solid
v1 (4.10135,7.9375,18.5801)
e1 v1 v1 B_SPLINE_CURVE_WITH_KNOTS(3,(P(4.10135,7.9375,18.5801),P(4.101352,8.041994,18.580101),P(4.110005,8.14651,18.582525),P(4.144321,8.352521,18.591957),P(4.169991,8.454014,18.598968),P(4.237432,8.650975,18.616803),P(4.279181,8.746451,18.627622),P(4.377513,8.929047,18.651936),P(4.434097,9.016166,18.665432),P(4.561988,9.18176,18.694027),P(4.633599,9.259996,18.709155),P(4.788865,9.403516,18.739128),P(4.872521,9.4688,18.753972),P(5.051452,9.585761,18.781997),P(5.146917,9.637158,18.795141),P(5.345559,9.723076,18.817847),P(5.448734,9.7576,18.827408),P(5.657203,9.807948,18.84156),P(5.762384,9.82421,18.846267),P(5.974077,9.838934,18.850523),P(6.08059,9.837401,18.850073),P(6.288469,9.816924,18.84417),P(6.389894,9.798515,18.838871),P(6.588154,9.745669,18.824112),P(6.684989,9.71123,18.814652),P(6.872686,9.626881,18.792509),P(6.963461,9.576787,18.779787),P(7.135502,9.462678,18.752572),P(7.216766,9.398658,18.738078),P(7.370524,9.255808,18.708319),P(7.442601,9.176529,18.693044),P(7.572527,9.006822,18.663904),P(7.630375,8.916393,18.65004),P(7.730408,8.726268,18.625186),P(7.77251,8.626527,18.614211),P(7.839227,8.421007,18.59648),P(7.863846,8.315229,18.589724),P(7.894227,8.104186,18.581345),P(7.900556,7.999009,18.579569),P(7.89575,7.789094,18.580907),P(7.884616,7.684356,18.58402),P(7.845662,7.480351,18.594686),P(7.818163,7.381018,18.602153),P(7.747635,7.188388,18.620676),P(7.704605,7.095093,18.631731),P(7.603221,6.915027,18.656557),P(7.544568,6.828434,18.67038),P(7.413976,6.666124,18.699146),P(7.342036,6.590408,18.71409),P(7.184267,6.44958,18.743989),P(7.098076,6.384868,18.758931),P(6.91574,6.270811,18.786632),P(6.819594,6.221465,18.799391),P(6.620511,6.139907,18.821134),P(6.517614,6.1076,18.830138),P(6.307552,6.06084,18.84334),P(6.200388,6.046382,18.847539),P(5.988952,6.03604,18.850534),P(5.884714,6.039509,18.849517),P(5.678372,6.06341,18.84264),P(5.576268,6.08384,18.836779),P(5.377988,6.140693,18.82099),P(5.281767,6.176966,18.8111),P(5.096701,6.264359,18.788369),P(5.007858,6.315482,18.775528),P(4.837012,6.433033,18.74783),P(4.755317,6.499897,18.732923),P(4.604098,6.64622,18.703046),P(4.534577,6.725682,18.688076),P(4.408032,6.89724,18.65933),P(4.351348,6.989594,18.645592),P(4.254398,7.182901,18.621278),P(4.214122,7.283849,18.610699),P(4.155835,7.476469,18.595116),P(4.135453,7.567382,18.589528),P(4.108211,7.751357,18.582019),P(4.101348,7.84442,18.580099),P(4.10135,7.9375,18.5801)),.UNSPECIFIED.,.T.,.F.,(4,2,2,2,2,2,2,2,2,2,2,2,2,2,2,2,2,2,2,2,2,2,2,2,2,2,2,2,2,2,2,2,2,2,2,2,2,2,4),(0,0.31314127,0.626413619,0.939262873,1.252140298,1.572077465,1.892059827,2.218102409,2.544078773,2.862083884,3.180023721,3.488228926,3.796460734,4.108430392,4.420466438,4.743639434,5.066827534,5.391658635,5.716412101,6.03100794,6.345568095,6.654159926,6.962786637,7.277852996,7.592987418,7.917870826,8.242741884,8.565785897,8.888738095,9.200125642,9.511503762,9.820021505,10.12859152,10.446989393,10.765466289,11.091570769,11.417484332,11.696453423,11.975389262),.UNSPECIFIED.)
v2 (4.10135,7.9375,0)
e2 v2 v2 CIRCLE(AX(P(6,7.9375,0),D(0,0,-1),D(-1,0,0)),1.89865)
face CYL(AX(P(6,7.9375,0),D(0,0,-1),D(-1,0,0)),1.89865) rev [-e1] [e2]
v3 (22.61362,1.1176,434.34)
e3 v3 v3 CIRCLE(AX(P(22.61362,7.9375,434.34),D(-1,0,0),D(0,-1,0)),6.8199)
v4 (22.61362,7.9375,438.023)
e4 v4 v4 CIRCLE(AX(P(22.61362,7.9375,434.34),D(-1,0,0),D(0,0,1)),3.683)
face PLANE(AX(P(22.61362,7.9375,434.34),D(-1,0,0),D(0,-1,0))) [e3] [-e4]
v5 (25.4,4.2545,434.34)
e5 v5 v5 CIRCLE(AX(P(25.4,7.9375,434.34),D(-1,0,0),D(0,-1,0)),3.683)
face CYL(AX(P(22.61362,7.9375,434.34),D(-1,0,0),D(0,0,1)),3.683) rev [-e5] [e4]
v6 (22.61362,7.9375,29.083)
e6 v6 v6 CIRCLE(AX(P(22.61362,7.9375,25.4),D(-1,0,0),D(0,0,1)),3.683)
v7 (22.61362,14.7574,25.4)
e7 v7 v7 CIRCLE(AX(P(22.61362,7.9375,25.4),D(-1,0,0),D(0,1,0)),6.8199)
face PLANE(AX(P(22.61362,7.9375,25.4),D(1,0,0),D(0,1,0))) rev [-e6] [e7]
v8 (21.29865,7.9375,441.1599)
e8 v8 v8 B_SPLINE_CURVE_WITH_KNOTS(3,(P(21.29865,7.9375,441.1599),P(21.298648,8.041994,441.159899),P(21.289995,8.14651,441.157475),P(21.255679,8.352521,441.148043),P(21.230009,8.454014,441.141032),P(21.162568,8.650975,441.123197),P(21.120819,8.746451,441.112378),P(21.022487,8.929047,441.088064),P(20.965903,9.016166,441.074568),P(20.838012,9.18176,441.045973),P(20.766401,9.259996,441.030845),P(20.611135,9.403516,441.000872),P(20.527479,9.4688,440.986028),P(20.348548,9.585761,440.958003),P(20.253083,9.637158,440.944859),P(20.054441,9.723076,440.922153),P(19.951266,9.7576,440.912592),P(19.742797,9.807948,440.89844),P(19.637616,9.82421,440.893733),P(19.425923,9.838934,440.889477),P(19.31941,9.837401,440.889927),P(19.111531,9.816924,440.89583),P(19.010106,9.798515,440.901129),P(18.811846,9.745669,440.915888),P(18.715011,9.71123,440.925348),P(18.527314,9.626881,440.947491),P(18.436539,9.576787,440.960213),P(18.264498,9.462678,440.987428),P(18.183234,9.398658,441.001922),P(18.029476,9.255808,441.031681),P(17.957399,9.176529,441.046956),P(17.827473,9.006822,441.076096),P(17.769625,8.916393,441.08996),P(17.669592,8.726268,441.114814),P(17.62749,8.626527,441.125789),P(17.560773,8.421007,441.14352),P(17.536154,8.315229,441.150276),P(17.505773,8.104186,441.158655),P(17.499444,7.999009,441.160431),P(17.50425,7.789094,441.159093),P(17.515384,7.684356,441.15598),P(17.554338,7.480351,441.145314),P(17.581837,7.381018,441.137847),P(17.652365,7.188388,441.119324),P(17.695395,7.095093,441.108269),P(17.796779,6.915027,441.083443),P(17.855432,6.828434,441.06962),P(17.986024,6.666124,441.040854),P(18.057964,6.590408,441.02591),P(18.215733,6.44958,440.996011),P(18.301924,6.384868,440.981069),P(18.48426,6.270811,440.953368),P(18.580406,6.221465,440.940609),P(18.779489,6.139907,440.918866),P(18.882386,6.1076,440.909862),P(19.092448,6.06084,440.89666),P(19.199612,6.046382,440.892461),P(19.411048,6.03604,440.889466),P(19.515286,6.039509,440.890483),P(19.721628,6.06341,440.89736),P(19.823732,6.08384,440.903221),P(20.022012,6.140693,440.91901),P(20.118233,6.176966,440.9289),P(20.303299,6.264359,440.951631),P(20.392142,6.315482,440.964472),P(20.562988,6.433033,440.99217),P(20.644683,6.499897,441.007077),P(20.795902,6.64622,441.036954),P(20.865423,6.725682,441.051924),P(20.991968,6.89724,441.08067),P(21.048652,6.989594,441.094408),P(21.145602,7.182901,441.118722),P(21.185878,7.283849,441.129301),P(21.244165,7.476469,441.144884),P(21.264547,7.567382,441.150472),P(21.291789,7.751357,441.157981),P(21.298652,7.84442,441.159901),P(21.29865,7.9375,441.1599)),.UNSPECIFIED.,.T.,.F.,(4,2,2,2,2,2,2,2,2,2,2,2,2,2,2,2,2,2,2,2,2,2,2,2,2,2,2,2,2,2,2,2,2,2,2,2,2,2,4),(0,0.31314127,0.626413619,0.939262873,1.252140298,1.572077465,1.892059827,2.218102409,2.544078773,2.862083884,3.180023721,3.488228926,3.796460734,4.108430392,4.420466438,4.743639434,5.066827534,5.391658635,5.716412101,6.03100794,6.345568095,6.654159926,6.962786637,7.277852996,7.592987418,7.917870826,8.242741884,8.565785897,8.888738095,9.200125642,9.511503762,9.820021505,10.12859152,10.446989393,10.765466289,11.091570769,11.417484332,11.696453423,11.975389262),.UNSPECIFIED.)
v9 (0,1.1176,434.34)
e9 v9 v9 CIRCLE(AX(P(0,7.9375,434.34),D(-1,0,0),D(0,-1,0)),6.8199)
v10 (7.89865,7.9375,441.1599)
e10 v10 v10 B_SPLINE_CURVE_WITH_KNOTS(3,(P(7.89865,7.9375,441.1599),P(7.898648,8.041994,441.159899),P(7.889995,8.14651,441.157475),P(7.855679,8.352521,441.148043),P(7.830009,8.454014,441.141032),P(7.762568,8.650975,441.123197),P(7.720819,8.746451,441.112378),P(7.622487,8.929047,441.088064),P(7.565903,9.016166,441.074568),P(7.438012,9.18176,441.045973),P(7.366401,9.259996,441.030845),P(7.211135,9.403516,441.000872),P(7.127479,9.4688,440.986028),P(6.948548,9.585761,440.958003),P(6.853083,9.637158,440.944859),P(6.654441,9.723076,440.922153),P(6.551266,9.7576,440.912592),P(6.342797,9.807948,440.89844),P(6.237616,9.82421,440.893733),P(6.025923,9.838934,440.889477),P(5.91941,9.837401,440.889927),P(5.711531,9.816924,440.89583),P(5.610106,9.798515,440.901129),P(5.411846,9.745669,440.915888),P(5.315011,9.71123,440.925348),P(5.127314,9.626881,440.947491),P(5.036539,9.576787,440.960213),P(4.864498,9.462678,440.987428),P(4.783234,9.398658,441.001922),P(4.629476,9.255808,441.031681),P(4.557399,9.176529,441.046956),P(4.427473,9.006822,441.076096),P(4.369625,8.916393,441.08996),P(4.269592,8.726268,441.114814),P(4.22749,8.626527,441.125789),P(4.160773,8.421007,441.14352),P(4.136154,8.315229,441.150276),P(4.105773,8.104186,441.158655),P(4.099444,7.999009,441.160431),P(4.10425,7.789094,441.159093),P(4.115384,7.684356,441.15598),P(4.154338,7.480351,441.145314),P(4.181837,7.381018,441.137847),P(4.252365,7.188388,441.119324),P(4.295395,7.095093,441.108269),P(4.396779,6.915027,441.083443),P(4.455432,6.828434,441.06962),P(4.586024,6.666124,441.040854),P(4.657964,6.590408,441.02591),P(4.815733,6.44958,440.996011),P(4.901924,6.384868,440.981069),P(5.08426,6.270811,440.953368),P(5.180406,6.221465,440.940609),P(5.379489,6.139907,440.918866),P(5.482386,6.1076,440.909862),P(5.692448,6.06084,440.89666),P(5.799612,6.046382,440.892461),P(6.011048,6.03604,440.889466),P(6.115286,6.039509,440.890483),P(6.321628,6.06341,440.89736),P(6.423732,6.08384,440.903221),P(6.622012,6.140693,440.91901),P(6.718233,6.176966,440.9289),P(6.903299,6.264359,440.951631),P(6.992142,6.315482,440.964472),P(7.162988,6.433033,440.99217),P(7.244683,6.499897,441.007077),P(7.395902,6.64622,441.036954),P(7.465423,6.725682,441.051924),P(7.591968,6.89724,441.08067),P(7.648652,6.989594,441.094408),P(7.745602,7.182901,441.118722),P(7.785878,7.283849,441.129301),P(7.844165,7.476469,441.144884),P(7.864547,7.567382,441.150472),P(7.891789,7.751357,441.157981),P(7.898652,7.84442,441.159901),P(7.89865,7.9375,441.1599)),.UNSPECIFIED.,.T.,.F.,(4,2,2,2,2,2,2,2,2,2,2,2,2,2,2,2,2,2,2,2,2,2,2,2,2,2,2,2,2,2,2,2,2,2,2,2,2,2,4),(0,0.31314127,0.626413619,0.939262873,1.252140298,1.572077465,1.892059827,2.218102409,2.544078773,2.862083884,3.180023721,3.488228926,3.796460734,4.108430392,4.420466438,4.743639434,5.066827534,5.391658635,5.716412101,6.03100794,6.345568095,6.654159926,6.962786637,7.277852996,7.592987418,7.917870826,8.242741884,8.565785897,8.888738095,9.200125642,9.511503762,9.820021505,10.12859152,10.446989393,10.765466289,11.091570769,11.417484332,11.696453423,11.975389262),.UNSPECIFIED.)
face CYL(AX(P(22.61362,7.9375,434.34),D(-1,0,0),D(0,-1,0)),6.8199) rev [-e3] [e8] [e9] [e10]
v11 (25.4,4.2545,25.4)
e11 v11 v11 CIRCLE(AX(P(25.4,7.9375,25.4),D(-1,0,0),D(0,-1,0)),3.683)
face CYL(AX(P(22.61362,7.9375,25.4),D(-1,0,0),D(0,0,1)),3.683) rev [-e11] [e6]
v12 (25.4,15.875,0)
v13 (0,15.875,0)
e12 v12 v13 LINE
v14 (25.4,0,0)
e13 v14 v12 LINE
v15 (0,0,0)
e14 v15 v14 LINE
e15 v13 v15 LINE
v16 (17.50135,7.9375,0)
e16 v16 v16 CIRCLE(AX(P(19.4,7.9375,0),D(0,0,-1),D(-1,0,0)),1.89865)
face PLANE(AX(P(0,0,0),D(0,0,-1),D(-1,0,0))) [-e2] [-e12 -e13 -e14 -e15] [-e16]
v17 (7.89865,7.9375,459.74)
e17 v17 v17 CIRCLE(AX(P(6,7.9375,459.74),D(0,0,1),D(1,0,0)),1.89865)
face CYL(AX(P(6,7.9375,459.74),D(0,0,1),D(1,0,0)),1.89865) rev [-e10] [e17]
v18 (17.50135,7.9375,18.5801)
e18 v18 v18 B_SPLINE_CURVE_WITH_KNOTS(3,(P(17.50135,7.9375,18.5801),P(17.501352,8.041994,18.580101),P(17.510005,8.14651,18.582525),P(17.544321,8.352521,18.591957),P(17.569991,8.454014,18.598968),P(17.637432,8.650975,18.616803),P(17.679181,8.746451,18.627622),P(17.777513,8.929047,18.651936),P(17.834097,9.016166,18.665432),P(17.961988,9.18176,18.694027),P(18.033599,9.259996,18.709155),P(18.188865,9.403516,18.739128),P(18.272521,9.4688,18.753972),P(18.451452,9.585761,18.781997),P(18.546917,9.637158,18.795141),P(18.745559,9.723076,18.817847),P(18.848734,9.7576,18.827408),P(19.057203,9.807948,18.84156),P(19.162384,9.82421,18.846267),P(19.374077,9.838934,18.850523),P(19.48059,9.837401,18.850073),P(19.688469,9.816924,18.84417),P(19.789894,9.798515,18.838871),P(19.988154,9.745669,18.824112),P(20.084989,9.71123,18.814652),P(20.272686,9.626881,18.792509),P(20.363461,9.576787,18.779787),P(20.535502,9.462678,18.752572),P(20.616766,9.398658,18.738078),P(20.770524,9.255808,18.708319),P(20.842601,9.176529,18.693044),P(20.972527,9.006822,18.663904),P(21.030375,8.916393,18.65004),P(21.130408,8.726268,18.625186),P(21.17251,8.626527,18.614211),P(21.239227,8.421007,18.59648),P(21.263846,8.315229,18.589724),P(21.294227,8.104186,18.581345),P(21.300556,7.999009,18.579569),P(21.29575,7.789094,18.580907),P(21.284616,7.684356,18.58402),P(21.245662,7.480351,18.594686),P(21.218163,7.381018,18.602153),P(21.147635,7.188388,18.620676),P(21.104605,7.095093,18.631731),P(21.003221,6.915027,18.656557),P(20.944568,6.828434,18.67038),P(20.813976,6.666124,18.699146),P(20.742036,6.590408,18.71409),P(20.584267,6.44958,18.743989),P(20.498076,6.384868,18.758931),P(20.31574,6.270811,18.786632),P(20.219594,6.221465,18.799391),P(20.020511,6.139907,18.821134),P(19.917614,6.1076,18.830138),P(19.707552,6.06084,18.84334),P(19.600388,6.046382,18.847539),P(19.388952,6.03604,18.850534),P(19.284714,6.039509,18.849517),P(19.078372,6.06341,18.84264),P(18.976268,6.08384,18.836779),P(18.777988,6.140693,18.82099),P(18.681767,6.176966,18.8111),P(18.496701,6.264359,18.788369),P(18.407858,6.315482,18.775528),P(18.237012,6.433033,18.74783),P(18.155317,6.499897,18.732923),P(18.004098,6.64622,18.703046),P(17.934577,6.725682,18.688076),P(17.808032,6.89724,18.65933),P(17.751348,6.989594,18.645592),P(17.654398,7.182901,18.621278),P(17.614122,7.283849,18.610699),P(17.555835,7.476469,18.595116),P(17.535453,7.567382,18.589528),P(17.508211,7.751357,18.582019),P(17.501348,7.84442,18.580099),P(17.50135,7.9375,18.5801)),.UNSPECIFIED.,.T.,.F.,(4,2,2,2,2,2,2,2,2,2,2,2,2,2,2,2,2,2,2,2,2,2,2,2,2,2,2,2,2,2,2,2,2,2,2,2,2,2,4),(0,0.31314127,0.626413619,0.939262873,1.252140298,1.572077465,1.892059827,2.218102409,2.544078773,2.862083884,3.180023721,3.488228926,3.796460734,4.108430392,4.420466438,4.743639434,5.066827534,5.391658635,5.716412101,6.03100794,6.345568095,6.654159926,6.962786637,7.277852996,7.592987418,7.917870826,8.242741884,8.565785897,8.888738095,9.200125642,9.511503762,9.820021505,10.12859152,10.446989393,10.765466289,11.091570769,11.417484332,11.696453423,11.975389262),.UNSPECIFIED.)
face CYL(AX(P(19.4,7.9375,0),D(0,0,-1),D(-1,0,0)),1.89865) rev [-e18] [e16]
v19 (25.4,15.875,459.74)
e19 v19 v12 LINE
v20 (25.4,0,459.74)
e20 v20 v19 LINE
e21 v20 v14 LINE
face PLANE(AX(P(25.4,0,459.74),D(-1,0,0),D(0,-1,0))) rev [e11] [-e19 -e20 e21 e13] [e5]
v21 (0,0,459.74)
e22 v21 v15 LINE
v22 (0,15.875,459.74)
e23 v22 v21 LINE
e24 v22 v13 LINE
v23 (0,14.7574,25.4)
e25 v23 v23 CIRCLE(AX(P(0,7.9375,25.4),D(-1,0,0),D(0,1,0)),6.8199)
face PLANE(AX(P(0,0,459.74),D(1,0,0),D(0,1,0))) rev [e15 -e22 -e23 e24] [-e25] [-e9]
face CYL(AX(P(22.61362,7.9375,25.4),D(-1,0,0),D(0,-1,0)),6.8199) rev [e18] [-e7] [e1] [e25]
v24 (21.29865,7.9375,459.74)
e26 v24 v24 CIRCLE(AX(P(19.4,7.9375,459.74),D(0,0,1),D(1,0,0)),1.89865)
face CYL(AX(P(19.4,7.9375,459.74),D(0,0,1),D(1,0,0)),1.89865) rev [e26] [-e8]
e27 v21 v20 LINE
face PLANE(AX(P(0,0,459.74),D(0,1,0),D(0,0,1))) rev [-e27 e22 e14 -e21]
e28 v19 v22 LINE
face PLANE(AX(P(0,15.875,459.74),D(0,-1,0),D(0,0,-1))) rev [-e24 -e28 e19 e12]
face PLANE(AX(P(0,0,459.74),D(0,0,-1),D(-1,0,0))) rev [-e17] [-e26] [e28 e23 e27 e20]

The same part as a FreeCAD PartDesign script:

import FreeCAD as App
import Part
import Sketcher

V = App.Vector
Q = App.Units.Quantity

doc = App.newDocument("Part")
params = doc.addObject("Spreadsheet::Sheet", "Params")
for row, (alias, value) in enumerate([
    ("sketch1_width", "1 in"),
    ("sketch1_height", "0.625 in"),
    ("pad1_length", "18.1 in"),
    ("sketch2_diameter", "0.537 in"),
    ("pocket1_length", "0.8903 in"),
    ("sketch3_diameter", "0.29 in"),
    ("hole_diameter", "0.29 in"),
    ("hole_depth", "2 in"),
    ("hole2_diameter", "0.1495 in"),
    ("hole2_depth", "0.815 in"),
    ("hole3_diameter", "0.1495 in"),
    ("hole3_depth", "0.815 in"),
], start=1):
    params.set(f"A{row}", alias)
    params.set(f"B{row}", "=" + value)
    params.setAlias(f"B{row}", alias)

body = doc.addObject("PartDesign::Body", "Body")

sketch1 = body.newObject("Sketcher::SketchObject", "Sketch")
sketch1.AttachmentSupport = (doc.getObject("XY_Plane"), [""])
sketch1.MapMode = "FlatFace"
sketch1.addGeometry([
    Part.LineSegment(V(0, 15.875, 0), V(0, 0, 0)),
    Part.LineSegment(V(0, 0, 0), V(25.4, 0, 0)),
    Part.LineSegment(V(25.4, 0, 0), V(25.4, 15.875, 0)),
    Part.LineSegment(V(25.4, 15.875, 0), V(0, 15.875, 0)),
], False)
sketch1.addConstraint([
    Sketcher.Constraint("Coincident", 0, 2, 1, 1),
    Sketcher.Constraint("Coincident", 1, 2, 2, 1),
    Sketcher.Constraint("Coincident", 2, 2, 3, 1),
    Sketcher.Constraint("Coincident", 3, 2, 0, 1),
    Sketcher.Constraint("Vertical", 0),
    Sketcher.Constraint("Horizontal", 1),
    Sketcher.Constraint("Vertical", 2),
    Sketcher.Constraint("Horizontal", 3),
    Sketcher.Constraint("Coincident", 0, 2, -1, 1),
    Sketcher.Constraint("DistanceX", 1, 1, 1, 2, Q("1 in")),
    Sketcher.Constraint("DistanceY", 0, 2, 0, 1, Q("0.625 in")),
])
sketch1.setExpression("Constraints[9]", "Params.sketch1_width")
sketch1.setExpression("Constraints[10]", "Params.sketch1_height")
pad1 = body.newObject("PartDesign::Pad", "Pad")
pad1.Profile = sketch1
pad1.setExpression("Length", "Params.pad1_length")

sketch2 = body.newObject("Sketcher::SketchObject", "Sketch001")
sketch2.AttachmentSupport = (doc.getObject("YZ_Plane"), [""])
sketch2.MapMode = "FlatFace"
sketch2.addGeometry([
    Part.Circle(V(7.9375, 434.34, 0), V(0, 0, 1), 6.8199),
    Part.Circle(V(7.9375, 25.4, 0), V(0, 0, 1), 6.8199),
], False)
sketch2.addConstraint([
    Sketcher.Constraint("Equal", 0, 1),
    Sketcher.Constraint("Vertical", 0, 3, 1, 3),
    Sketcher.Constraint("Diameter", 0, Q("0.537 in")),
    Sketcher.Constraint("DistanceY", -1, 1, 1, 3, Q("1 in")),
    Sketcher.Constraint("DistanceY", -1, 1, 0, 3, Q("17.1 in")),
    Sketcher.Constraint("DistanceX", -1, 1, 0, 3, Q("0.3125 in")),
])
sketch2.setExpression("Constraints[2]", "Params.sketch2_diameter")
pocket1 = body.newObject("PartDesign::Pocket", "Pocket")
pocket1.Profile = sketch2
pocket1.setExpression("Length", "Params.pocket1_length")
pocket1.Reversed = True

sketch3 = body.newObject("Sketcher::SketchObject", "Sketch002")
sketch3.AttachmentSupport = (doc.getObject("YZ_Plane"), [""])
sketch3.MapMode = "FlatFace"
sketch3.AttachmentOffset = App.Placement(V(0, 0, 0.8903 * 25.4), App.Rotation())
sketch3.addGeometry([
    Part.Circle(V(7.9375, 25.4, 0), V(0, 0, 1), 3.683),
    Part.Circle(V(7.9375, 434.34, 0), V(0, 0, 1), 3.683),
], False)
sketch3.addConstraint([
    Sketcher.Constraint("Equal", 0, 1),
    Sketcher.Constraint("Vertical", 0, 3, 1, 3),
    Sketcher.Constraint("Diameter", 0, Q("0.29 in")),
    Sketcher.Constraint("DistanceY", -1, 1, 0, 3, Q("1 in")),
    Sketcher.Constraint("DistanceY", -1, 1, 1, 3, Q("17.1 in")),
    Sketcher.Constraint("DistanceX", -1, 1, 0, 3, Q("0.3125 in")),
])
sketch3.setExpression("Constraints[2]", "Params.sketch3_diameter")
doc.recompute()
hole = body.newObject("PartDesign::Hole", "Hole")
hole.Profile = sketch3
hole.ThreadType = "None"
hole.setExpression("Diameter", "Params.hole_diameter")
hole.DepthType = "Dimension"
hole.setExpression("Depth", "Params.hole_depth")
hole.DrillPoint = "Angled"
hole.DrillPointAngle = 118
hole.Reversed = True

sketch4 = body.newObject("Sketcher::SketchObject", "Sketch003")
sketch4.AttachmentSupport = (doc.getObject("XY_Plane"), [""])
sketch4.MapMode = "FlatFace"
sketch4.AttachmentOffset = App.Placement(V(0, 0, 18.1 * 25.4), App.Rotation())
sketch4.addGeometry([
    Part.Circle(V(19.4, 7.9375, 0), V(0, 0, 1), 1.89865),
    Part.Circle(V(6, 7.9375, 0), V(0, 0, 1), 1.89865),
], False)
sketch4.addConstraint([
    Sketcher.Constraint("Equal", 0, 1),
    Sketcher.Constraint("Horizontal", 0, 3, 1, 3),
    Sketcher.Constraint("Diameter", 0, Q("0.1495 in")),
    Sketcher.Constraint("DistanceY", -1, 1, 0, 3, Q("0.3125 in")),
    Sketcher.Constraint("DistanceX", -1, 1, 0, 3, Q("19.4 mm")),
    Sketcher.Constraint("DistanceX", -1, 1, 1, 3, Q("6 mm")),
])
doc.recompute()
hole2 = body.newObject("PartDesign::Hole", "Hole001")
hole2.Profile = sketch4
hole2.ThreadType = "None"
hole2.setExpression("Diameter", "Params.hole2_diameter")
hole2.DepthType = "Dimension"
hole2.setExpression("Depth", "Params.hole2_depth")
hole2.DrillPoint = "Angled"
hole2.DrillPointAngle = 118

sketch5 = body.newObject("Sketcher::SketchObject", "Sketch004")
sketch5.AttachmentSupport = (doc.getObject("XY_Plane"), [""])
sketch5.MapMode = "FlatFace"
sketch5.addGeometry([
    Part.Circle(V(19.4, 7.9375, 0), V(0, 0, 1), 1.89865),
    Part.Circle(V(6, 7.9375, 0), V(0, 0, 1), 1.89865),
], False)
sketch5.addConstraint([
    Sketcher.Constraint("Equal", 0, 1),
    Sketcher.Constraint("Horizontal", 0, 3, 1, 3),
    Sketcher.Constraint("Diameter", 0, Q("0.1495 in")),
    Sketcher.Constraint("DistanceY", -1, 1, 0, 3, Q("0.3125 in")),
    Sketcher.Constraint("DistanceX", -1, 1, 0, 3, Q("19.4 mm")),
    Sketcher.Constraint("DistanceX", -1, 1, 1, 3, Q("6 mm")),
])
doc.recompute()
hole3 = body.newObject("PartDesign::Hole", "Hole002")
hole3.Profile = sketch5
hole3.ThreadType = "None"
hole3.setExpression("Diameter", "Params.hole3_diameter")
hole3.DepthType = "Dimension"
hole3.setExpression("Depth", "Params.hole3_depth")
hole3.DrillPoint = "Angled"
hole3.DrillPointAngle = 118
hole3.Reversed = True

doc.recompute()
